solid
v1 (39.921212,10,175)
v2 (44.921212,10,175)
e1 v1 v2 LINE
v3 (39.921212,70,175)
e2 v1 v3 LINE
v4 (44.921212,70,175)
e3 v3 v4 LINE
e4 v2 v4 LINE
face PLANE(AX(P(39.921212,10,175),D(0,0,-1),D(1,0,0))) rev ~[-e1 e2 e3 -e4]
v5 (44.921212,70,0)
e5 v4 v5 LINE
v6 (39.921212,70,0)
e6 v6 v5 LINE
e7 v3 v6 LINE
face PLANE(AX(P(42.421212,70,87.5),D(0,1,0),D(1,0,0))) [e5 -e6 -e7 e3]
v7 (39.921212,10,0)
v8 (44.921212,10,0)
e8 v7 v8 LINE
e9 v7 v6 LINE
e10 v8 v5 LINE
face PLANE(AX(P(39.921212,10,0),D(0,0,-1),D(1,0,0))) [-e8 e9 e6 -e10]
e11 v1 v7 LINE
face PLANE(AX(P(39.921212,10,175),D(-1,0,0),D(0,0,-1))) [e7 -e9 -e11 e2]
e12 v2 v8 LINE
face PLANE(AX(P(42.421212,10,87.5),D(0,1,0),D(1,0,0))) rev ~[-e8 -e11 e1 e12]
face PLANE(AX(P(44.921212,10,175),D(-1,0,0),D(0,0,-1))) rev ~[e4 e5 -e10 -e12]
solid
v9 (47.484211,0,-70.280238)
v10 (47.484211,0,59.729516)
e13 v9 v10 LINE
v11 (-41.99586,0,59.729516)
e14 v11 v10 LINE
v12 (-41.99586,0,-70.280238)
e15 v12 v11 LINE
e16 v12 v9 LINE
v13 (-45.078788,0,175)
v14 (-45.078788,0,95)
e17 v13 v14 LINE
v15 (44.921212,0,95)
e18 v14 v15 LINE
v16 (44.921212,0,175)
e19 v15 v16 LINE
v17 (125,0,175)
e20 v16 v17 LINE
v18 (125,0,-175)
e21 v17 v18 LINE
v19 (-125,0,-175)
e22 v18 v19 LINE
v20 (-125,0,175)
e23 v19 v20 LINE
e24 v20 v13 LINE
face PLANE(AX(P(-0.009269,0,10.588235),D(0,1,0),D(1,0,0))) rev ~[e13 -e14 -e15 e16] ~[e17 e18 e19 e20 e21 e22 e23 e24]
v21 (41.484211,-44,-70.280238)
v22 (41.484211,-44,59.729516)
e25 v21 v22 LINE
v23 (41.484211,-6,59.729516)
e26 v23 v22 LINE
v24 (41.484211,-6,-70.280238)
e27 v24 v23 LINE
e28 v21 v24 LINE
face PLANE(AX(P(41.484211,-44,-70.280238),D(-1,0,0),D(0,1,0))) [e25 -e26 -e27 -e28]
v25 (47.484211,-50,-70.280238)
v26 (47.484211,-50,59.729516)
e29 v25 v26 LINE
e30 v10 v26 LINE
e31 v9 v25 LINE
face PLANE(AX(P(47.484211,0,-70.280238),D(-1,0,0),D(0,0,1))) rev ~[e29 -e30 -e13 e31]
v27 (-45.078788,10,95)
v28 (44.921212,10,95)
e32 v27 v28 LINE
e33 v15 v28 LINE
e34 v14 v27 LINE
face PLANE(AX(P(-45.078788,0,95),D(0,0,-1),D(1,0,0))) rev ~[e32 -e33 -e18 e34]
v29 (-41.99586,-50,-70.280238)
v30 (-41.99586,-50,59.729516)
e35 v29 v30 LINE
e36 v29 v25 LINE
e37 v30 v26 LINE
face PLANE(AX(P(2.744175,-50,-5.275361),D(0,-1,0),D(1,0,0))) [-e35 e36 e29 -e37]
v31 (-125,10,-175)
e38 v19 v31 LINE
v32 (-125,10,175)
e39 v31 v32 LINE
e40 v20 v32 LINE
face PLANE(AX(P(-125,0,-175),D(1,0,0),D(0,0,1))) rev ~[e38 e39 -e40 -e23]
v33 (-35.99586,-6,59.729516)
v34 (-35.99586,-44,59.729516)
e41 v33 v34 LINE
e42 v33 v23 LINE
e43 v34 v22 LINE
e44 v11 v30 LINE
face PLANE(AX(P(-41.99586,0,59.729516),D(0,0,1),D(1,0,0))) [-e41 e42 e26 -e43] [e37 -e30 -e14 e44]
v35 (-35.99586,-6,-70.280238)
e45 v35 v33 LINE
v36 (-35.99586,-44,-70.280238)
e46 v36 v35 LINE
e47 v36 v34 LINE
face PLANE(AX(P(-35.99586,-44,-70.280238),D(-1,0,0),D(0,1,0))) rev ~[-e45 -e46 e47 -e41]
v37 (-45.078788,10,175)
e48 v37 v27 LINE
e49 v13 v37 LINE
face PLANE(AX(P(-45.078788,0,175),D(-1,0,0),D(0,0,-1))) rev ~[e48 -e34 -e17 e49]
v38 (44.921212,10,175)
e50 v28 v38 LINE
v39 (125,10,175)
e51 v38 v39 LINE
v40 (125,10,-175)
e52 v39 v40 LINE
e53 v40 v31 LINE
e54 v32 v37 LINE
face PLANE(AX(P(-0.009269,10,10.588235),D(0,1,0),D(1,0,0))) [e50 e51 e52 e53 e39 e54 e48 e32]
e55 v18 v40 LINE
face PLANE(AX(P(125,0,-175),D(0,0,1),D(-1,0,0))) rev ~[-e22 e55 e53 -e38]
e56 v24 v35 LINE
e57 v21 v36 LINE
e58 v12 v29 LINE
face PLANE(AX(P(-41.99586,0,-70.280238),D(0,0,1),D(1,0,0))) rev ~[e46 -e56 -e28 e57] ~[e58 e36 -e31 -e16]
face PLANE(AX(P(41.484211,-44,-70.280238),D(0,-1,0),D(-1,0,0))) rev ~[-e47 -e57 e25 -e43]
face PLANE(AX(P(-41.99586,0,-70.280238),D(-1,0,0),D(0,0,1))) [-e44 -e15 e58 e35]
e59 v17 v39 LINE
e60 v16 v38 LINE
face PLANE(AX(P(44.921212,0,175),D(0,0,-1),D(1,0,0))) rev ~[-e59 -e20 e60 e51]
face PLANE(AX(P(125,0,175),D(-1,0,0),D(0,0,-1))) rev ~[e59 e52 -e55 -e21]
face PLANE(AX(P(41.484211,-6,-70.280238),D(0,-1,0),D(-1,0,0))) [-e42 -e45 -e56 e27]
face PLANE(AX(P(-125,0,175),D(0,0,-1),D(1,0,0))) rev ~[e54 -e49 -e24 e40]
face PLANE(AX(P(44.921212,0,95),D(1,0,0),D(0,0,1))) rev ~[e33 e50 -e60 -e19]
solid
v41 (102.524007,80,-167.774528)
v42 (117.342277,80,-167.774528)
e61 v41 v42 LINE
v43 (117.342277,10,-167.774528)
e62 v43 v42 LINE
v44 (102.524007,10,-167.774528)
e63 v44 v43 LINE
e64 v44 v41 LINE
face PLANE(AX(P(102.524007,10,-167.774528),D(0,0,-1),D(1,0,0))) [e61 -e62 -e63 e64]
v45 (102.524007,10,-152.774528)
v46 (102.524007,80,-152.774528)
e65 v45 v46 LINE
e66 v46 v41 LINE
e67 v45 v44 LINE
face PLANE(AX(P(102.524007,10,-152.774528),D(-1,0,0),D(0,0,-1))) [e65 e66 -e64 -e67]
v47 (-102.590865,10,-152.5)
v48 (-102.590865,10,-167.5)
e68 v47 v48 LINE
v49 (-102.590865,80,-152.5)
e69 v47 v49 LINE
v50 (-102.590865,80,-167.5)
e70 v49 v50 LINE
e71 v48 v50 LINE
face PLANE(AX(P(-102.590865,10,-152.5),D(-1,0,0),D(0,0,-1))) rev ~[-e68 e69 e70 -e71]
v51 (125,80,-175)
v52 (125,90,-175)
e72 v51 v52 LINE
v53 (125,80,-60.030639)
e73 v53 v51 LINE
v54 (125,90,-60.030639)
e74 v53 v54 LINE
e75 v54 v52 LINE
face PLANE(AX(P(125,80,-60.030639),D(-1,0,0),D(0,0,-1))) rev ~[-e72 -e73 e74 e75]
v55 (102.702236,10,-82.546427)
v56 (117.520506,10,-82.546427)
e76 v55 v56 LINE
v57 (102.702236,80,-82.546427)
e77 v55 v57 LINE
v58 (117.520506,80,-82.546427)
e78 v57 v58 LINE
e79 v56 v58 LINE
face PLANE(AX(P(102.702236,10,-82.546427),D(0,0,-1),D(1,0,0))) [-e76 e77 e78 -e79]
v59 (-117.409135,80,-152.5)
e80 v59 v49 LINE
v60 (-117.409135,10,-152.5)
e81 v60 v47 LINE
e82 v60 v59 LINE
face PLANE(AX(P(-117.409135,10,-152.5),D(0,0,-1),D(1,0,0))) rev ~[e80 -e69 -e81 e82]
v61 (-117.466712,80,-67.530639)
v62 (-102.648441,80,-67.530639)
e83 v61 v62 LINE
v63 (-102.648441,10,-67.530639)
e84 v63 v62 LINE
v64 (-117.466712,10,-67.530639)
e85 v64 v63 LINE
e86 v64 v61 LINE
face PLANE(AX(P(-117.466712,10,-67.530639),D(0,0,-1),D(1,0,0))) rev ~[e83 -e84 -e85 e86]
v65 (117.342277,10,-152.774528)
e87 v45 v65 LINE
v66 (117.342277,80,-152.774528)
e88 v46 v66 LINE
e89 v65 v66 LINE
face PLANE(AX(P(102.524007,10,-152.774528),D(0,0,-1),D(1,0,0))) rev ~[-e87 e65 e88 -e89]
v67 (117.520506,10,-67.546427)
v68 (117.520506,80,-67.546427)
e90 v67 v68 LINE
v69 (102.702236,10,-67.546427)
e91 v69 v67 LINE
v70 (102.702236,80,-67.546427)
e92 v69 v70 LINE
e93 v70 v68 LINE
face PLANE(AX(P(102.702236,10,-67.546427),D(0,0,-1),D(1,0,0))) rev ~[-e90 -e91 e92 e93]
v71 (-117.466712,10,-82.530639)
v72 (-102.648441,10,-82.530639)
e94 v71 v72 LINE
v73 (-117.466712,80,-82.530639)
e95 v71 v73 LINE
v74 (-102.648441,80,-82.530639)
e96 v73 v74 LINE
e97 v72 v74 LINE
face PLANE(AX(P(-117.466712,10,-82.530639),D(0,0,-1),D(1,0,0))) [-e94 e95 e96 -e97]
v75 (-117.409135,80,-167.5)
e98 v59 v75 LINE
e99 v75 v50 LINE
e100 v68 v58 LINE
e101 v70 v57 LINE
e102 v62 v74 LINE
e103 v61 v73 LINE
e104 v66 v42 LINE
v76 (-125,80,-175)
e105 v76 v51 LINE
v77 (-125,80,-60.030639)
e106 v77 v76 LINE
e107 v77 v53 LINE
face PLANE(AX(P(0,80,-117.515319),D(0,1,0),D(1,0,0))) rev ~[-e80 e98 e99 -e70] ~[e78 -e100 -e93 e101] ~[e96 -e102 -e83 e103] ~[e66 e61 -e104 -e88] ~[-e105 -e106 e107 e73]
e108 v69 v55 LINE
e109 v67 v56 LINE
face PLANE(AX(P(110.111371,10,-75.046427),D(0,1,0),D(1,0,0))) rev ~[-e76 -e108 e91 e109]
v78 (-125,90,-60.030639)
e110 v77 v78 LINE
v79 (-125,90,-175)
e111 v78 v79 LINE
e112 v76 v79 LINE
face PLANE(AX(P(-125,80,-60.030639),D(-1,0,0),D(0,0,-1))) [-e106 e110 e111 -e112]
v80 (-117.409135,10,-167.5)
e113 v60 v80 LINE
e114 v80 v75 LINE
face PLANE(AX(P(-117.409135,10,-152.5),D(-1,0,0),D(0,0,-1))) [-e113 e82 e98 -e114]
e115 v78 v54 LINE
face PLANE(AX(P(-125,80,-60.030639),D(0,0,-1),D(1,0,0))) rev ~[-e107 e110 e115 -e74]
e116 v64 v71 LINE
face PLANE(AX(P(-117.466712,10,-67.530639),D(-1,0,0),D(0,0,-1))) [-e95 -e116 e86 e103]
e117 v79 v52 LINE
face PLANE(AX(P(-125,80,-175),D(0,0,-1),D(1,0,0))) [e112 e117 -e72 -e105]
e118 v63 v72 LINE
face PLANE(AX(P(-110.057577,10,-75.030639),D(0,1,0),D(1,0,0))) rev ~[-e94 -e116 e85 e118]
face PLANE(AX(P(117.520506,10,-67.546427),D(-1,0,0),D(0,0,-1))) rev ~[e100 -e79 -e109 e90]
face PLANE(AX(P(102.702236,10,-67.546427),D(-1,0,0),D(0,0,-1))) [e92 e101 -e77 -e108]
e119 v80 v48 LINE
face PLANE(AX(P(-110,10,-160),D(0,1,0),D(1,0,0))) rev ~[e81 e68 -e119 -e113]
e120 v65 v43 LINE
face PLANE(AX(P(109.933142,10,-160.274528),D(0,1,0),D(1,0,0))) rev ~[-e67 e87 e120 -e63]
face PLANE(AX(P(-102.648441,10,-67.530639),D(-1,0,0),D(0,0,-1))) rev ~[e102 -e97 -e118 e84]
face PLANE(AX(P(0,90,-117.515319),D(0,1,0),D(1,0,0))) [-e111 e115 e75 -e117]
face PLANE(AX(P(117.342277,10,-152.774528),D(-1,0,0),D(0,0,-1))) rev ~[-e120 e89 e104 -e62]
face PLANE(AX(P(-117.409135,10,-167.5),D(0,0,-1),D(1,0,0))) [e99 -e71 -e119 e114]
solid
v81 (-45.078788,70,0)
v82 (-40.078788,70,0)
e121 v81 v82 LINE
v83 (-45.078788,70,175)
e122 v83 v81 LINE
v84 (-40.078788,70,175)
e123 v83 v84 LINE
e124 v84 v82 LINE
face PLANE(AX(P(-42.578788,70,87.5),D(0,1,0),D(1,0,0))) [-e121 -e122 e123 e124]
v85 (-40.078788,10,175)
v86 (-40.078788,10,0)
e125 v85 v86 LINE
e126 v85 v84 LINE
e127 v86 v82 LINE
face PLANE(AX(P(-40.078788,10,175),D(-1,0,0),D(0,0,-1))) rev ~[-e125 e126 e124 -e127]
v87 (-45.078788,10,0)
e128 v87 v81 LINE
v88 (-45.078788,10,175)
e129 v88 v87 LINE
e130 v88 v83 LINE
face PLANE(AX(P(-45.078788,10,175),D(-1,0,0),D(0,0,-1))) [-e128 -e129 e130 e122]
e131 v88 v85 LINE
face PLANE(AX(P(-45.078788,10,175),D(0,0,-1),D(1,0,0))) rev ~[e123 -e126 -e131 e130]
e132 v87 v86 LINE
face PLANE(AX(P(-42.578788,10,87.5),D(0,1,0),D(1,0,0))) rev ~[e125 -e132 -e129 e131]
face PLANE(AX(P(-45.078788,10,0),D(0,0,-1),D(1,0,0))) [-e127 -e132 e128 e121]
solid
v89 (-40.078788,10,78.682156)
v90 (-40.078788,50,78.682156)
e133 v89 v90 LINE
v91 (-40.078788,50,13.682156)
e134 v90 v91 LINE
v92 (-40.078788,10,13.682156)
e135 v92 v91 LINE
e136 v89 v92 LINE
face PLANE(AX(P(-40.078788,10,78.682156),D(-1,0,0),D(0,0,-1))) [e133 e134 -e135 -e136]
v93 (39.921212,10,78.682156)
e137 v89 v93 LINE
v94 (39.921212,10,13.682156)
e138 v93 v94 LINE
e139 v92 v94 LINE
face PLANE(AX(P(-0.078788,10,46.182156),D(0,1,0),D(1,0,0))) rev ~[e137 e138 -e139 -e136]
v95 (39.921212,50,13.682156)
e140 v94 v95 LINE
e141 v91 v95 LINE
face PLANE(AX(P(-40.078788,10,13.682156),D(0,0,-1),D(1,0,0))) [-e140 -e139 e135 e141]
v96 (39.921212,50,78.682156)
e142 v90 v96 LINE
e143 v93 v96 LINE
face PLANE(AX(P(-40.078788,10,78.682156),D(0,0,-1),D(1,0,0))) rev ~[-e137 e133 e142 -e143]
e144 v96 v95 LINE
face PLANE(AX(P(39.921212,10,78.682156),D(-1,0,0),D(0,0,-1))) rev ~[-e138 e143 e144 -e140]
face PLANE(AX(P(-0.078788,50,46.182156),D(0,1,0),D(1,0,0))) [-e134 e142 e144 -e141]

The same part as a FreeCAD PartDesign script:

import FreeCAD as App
import Part
import Sketcher

V = App.Vector
Q = App.Units.Quantity


def add_polygon(sketch, points):
    """Adds a closed chain of lines whose ends are joined by coincident constraints."""
    first, n = sketch.GeometryCount, len(points)
    for a, b in zip(points, points[1:] + points[:1]):
        sketch.addGeometry(Part.LineSegment(App.Vector(*a, 0), App.Vector(*b, 0)), False)
    for i in range(n):
        sketch.addConstraint(Sketcher.Constraint("Coincident", first + i, 2, first + (i + 1) % n, 1))

doc = App.newDocument("Part")
body = doc.addObject("PartDesign::Body", "Body")

sketch1 = doc.addObject("Sketcher::SketchObject", "Sketch")
body.addObject(sketch1)
sketch1.AttachmentSupport = (doc.XZ_Plane, [""])
sketch1.MapMode = "FlatFace"
add_polygon(sketch1, [(125, -175), (-125, -175), (-125, 175), (-45, 175), (-45, 95), (45, 95), (45, 175), (125, 175)])
sketch1.addConstraint([
    Sketcher.Constraint("Horizontal", 0),
    Sketcher.Constraint("Vertical", 1),
    Sketcher.Constraint("Horizontal", 2),
    Sketcher.Constraint("Vertical", 3),
    Sketcher.Constraint("Horizontal", 4),
    Sketcher.Constraint("Vertical", 5),
    Sketcher.Constraint("Horizontal", 6),
    Sketcher.Constraint("Vertical", 7),
    Sketcher.Constraint("Symmetric", 0, 2, 6, 2, -1, 1),
    Sketcher.Constraint("Horizontal", 2, 2, 5, 2),
    Sketcher.Constraint("DistanceX", 0, 2, 0, 1, Q("250 mm")),
    Sketcher.Constraint("DistanceX", 4, 1, 4, 2, Q("90 mm")),
    Sketcher.Constraint("DistanceY", 1, 1, 1, 2, Q("350 mm")),
    Sketcher.Constraint("DistanceY", 3, 2, 3, 1, Q("80 mm")),
    Sketcher.Constraint("DistanceX", 2, 1, 2, 2, Q("79.921212 mm")),
])
pad1 = doc.addObject("PartDesign::Pad", "Pad")
body.addObject(pad1)
pad1.Profile = sketch1
pad1.Length = 10
pad1.Reversed = True

sketch2 = doc.addObject("Sketcher::SketchObject", "Sketch001")
body.addObject(sketch2)
sketch2.AttachmentSupport = (doc.XZ_Plane, [""])
sketch2.MapMode = "FlatFace"
add_polygon(sketch2, [(-42, 60), (-42, -70), (47, -70), (47, 60)])
sketch2.addConstraint([
    Sketcher.Constraint("Vertical", 0),
    Sketcher.Constraint("Horizontal", 1),
    Sketcher.Constraint("Vertical", 2),
    Sketcher.Constraint("Horizontal", 3),
    Sketcher.Constraint("DistanceX", 1, 1, 1, 2, Q("89.48007 mm")),
    Sketcher.Constraint("DistanceY", 0, 2, 0, 1, Q("130.009753 mm")),
    Sketcher.Constraint("DistanceX", 0, 2, -1, 1, Q("41.99586 mm")),
    Sketcher.Constraint("DistanceY", 0, 2, -1, 1, Q("70.280238 mm")),
])
pad2 = doc.addObject("PartDesign::Pad", "Pad001")
body.addObject(pad2)
pad2.Profile = sketch2
pad2.Length = 50

sketch3 = doc.addObject("Sketcher::SketchObject", "Sketch002")
body.addObject(sketch3)
sketch3.AttachmentSupport = (doc.XY_Plane, [""])
sketch3.MapMode = "FlatFace"
sketch3.AttachmentOffset = App.Placement(V(0, 0, -70.280238), App.Rotation())
add_polygon(sketch3, [(41, -6), (41, -44), (-36, -44), (-36, -6)])
sketch3.addConstraint([
    Sketcher.Constraint("Vertical", 0),
    Sketcher.Constraint("Horizontal", 1),
    Sketcher.Constraint("Vertical", 2),
    Sketcher.Constraint("Horizontal", 3),
    Sketcher.Constraint("DistanceY", 0, 2, 0, 1, Q("38 mm")),
    Sketcher.Constraint("DistanceY", 0, 2, -1, 1, Q("44 mm")),
    Sketcher.Constraint("DistanceX", 1, 2, 1, 1, Q("77.48007 mm")),
    Sketcher.Constraint("DistanceX", -1, 1, 0, 2, Q("41.484211 mm")),
])
pocket1 = doc.addObject("PartDesign::Pocket", "Pocket")
body.addObject(pocket1)
pocket1.Profile = sketch3
pocket1.Type = "ThroughAll"
pocket1.Reversed = True
body2 = doc.addObject("PartDesign::Body", "Body001")

sketch4 = doc.addObject("Sketcher::SketchObject", "Sketch003")
body2.addObject(sketch4)
sketch4.AttachmentSupport = (doc.getObject("XZ_Plane001"), [""])
sketch4.MapMode = "FlatFace"
sketch4.AttachmentOffset = App.Placement(V(0, 0, -10), App.Rotation())
add_polygon(sketch4, [(-45, 0), (-45, 175), (-40, 175), (-40, 0)])
sketch4.addConstraint([
    Sketcher.Constraint("Vertical", 0),
    Sketcher.Constraint("Horizontal", 1),
    Sketcher.Constraint("Vertical", 2),
    Sketcher.Constraint("Horizontal", 3),
    Sketcher.Constraint("PointOnObject", 2, 2, -1),
    Sketcher.Constraint("DistanceX", 1, 1, 1, 2, Q("5 mm")),
    Sketcher.Constraint("DistanceY", 0, 1, 0, 2, Q("175 mm")),
    Sketcher.Constraint("DistanceX", 0, 2, -1, 1, Q("45.078788 mm")),
])
pad3 = doc.addObject("PartDesign::Pad", "Pad002")
body2.addObject(pad3)
pad3.Profile = sketch4
pad3.Length = 60
pad3.Reversed = True
body3 = doc.addObject("PartDesign::Body", "Body002")

sketch5 = doc.addObject("Sketcher::SketchObject", "Sketch004")
body3.addObject(sketch5)
sketch5.AttachmentSupport = (doc.getObject("XZ_Plane002"), [""])
sketch5.MapMode = "FlatFace"
sketch5.AttachmentOffset = App.Placement(V(0, 0, -10), App.Rotation())
add_polygon(sketch5, [(40, 0), (40, 175), (45, 175), (45, 0)])
sketch5.addConstraint([
    Sketcher.Constraint("Vertical", 0),
    Sketcher.Constraint("Horizontal", 1),
    Sketcher.Constraint("Vertical", 2),
    Sketcher.Constraint("Horizontal", 3),
    Sketcher.Constraint("PointOnObject", 2, 2, -1),
    Sketcher.Constraint("DistanceX", 1, 1, 1, 2, Q("5 mm")),
    Sketcher.Constraint("DistanceY", 0, 1, 0, 2, Q("175 mm")),
    Sketcher.Constraint("DistanceX", -1, 1, 0, 2, Q("39.921212 mm")),
])
pad4 = doc.addObject("PartDesign::Pad", "Pad003")
body3.addObject(pad4)
pad4.Profile = sketch5
pad4.Length = 60
pad4.Reversed = True
body4 = doc.addObject("PartDesign::Body", "Body003")

sketch6 = doc.addObject("Sketcher::SketchObject", "Sketch005")
body4.addObject(sketch6)
sketch6.AttachmentSupport = (doc.getObject("XZ_Plane003"), [""])
sketch6.MapMode = "FlatFace"
sketch6.AttachmentOffset = App.Placement(V(0, 0, -10), App.Rotation())
add_polygon(sketch6, [(-40, 14), (-40, 79), (40, 79), (40, 14)])
sketch6.addConstraint([
    Sketcher.Constraint("Vertical", 0),
    Sketcher.Constraint("Horizontal", 1),
    Sketcher.Constraint("Vertical", 2),
    Sketcher.Constraint("Horizontal", 3),
    Sketcher.Constraint("DistanceX", 1, 1, 1, 2, Q("80 mm")),
    Sketcher.Constraint("DistanceY", 0, 1, 0, 2, Q("65 mm")),
    Sketcher.Constraint("DistanceX", 0, 2, -1, 1, Q("40.078788 mm")),
    Sketcher.Constraint("DistanceY", -1, 1, 0, 2, Q("78.682156 mm")),
])
pad5 = doc.addObject("PartDesign::Pad", "Pad004")
body4.addObject(pad5)
pad5.Profile = sketch6
pad5.Length = 70
pad5.Reversed = True

sketch7 = doc.addObject("Sketcher::SketchObject", "Sketch006")
body4.addObject(sketch7)
sketch7.AttachmentSupport = (doc.getObject("XZ_Plane003"), [""])
sketch7.MapMode = "FlatFace"
sketch7.AttachmentOffset = App.Placement(V(0, 0, -80), App.Rotation())
add_polygon(sketch7, [(-40, 14), (-40, 79), (40, 79), (40, 14)])
sketch7.addConstraint([
    Sketcher.Constraint("Vertical", 0),
    Sketcher.Constraint("Horizontal", 1),
    Sketcher.Constraint("Vertical", 2),
    Sketcher.Constraint("Horizontal", 3),
    Sketcher.Constraint("DistanceX", 1, 1, 1, 2, Q("80 mm")),
    Sketcher.Constraint("DistanceY", 0, 1, 0, 2, Q("65 mm")),
    Sketcher.Constraint("DistanceX", 0, 2, -1, 1, Q("40.078788 mm")),
    Sketcher.Constraint("DistanceY", -1, 1, 0, 2, Q("78.682156 mm")),
])
pocket2 = doc.addObject("PartDesign::Pocket", "Pocket001")
body4.addObject(pocket2)
pocket2.Profile = sketch7
pocket2.Length = 30
pocket2.Reversed = True
body5 = doc.addObject("PartDesign::Body", "Body004")

sketch8 = doc.addObject("Sketcher::SketchObject", "Sketch007")
body5.addObject(sketch8)
sketch8.AttachmentSupport = (doc.getObject("XZ_Plane004"), [""])
sketch8.MapMode = "FlatFace"
sketch8.AttachmentOffset = App.Placement(V(0, 0, -10), App.Rotation())
add_polygon(sketch8, [(-117, -168), (-117, -152), (-103, -152), (-103, -168)])
sketch8.addConstraint([
    Sketcher.Constraint("Vertical", 0),
    Sketcher.Constraint("Horizontal", 1),
    Sketcher.Constraint("Vertical", 2),
    Sketcher.Constraint("Horizontal", 3),
    Sketcher.Constraint("DistanceY", 0, 1, 0, 2, Q("15 mm")),
    Sketcher.Constraint("DistanceY", 0, 2, -1, 1, Q("152.5 mm")),
    Sketcher.Constraint("DistanceX", 1, 1, 1, 2, Q("14.81827 mm")),
    Sketcher.Constraint("DistanceX", 0, 2, -1, 1, Q("117.409135 mm")),
])
pad6 = doc.addObject("PartDesign::Pad", "Pad005")
body5.addObject(pad6)
pad6.Profile = sketch8
pad6.Length = 70
pad6.Reversed = True
body6 = doc.addObject("PartDesign::Body", "Body005")

sketch9 = doc.addObject("Sketcher::SketchObject", "Sketch008")
body6.addObject(sketch9)
sketch9.AttachmentSupport = (doc.getObject("XZ_Plane005"), [""])
sketch9.MapMode = "FlatFace"
sketch9.AttachmentOffset = App.Placement(V(0, 0, -10), App.Rotation())
add_polygon(sketch9, [(-117, -83), (-117, -68), (-103, -68), (-103, -83)])
sketch9.addConstraint([
    Sketcher.Constraint("Vertical", 0),
    Sketcher.Constraint("Horizontal", 1),
    Sketcher.Constraint("Vertical", 2),
    Sketcher.Constraint("Horizontal", 3),
    Sketcher.Constraint("DistanceY", 0, 1, 0, 2, Q("15 mm")),
    Sketcher.Constraint("DistanceX", 1, 1, 1, 2, Q("14.81827 mm")),
    Sketcher.Constraint("DistanceX", 0, 2, -1, 1, Q("117.466712 mm")),
    Sketcher.Constraint("DistanceY", 0, 2, -1, 1, Q("67.530639 mm")),
])
pad7 = doc.addObject("PartDesign::Pad", "Pad006")
body6.addObject(pad7)
pad7.Profile = sketch9
pad7.Length = 70
pad7.Reversed = True
body7 = doc.addObject("PartDesign::Body", "Body006")

sketch10 = doc.addObject("Sketcher::SketchObject", "Sketch009")
body7.addObject(sketch10)
sketch10.AttachmentSupport = (doc.getObject("XZ_Plane006"), [""])
sketch10.MapMode = "FlatFace"
sketch10.AttachmentOffset = App.Placement(V(0, 0, -10), App.Rotation())
add_polygon(sketch10, [(103, -168), (103, -153), (117, -153), (117, -168)])
sketch10.addConstraint([
    Sketcher.Constraint("Vertical", 0),
    Sketcher.Constraint("Horizontal", 1),
    Sketcher.Constraint("Vertical", 2),
    Sketcher.Constraint("Horizontal", 3),
    Sketcher.Constraint("DistanceY", 0, 1, 0, 2, Q("15 mm")),
    Sketcher.Constraint("DistanceX", 1, 1, 1, 2, Q("14.81827 mm")),
    Sketcher.Constraint("DistanceY", 0, 2, -1, 1, Q("152.774528 mm")),
    Sketcher.Constraint("DistanceX", -1, 1, 0, 2, Q("102.524007 mm")),
])
pad8 = doc.addObject("PartDesign::Pad", "Pad007")
body7.addObject(pad8)
pad8.Profile = sketch10
pad8.Length = 70
pad8.Reversed = True
body8 = doc.addObject("PartDesign::Body", "Body007")

sketch11 = doc.addObject("Sketcher::SketchObject", "Sketch010")
body8.addObject(sketch11)
sketch11.AttachmentSupport = (doc.getObject("XZ_Plane007"), [""])
sketch11.MapMode = "FlatFace"
sketch11.AttachmentOffset = App.Placement(V(0, 0, -10), App.Rotation())
add_polygon(sketch11, [(103, -83), (103, -68), (118, -68), (118, -83)])
sketch11.addConstraint([
    Sketcher.Constraint("Vertical", 0),
    Sketcher.Constraint("Horizontal", 1),
    Sketcher.Constraint("Vertical", 2),
    Sketcher.Constraint("Horizontal", 3),
    Sketcher.Constraint("DistanceY", 0, 1, 0, 2, Q("15 mm")),
    Sketcher.Constraint("DistanceX", 1, 1, 1, 2, Q("14.81827 mm")),
    Sketcher.Constraint("DistanceX", -1, 1, 0, 2, Q("102.702236 mm")),
    Sketcher.Constraint("DistanceY", 0, 2, -1, 1, Q("67.546427 mm")),
])
pad9 = doc.addObject("PartDesign::Pad", "Pad008")
body8.addObject(pad9)
pad9.Profile = sketch11
pad9.Length = 70
pad9.Reversed = True
body5.AllowCompound = True
doc.recompute()

boolean = doc.addObject("PartDesign::Boolean", "Boolean")
body5.addObject(boolean)
boolean.Type = "Fuse"
boolean.addObjects([body6])
doc.recompute()

boolean2 = doc.addObject("PartDesign::Boolean", "Boolean001")
body5.addObject(boolean2)
boolean2.Type = "Fuse"
boolean2.addObjects([body7])
doc.recompute()

boolean3 = doc.addObject("PartDesign::Boolean", "Boolean002")
body5.addObject(boolean3)
boolean3.Type = "Fuse"
boolean3.addObjects([body8])

sketch12 = doc.addObject("Sketcher::SketchObject", "Sketch011")
body5.addObject(sketch12)
sketch12.AttachmentSupport = (doc.getObject("XZ_Plane004"), [""])
sketch12.MapMode = "FlatFace"
sketch12.AttachmentOffset = App.Placement(V(0, 0, -80), App.Rotation())
add_polygon(sketch12, [(-125, -175), (-125, -60), (125, -60), (125, -175)])
sketch12.addConstraint([
    Sketcher.Constraint("Vertical", 0),
    Sketcher.Constraint("Horizontal", 1),
    Sketcher.Constraint("Vertical", 2),
    Sketcher.Constraint("Horizontal", 3),
    Sketcher.Constraint("DistanceX", 1, 1, 1, 2, Q("250 mm")),
    Sketcher.Constraint("DistanceX", 0, 2, -1, 1, Q("125 mm")),
    Sketcher.Constraint("DistanceY", 2, 2, -1, 1, Q("175 mm")),
    Sketcher.Constraint("DistanceY", 0, 1, 0, 2, Q("114.969361 mm")),
])
pad10 = doc.addObject("PartDesign::Pad", "Pad009")
body5.addObject(pad10)
pad10.Profile = sketch12
pad10.Length = 10
pad10.Reversed = True

doc.recompute()
